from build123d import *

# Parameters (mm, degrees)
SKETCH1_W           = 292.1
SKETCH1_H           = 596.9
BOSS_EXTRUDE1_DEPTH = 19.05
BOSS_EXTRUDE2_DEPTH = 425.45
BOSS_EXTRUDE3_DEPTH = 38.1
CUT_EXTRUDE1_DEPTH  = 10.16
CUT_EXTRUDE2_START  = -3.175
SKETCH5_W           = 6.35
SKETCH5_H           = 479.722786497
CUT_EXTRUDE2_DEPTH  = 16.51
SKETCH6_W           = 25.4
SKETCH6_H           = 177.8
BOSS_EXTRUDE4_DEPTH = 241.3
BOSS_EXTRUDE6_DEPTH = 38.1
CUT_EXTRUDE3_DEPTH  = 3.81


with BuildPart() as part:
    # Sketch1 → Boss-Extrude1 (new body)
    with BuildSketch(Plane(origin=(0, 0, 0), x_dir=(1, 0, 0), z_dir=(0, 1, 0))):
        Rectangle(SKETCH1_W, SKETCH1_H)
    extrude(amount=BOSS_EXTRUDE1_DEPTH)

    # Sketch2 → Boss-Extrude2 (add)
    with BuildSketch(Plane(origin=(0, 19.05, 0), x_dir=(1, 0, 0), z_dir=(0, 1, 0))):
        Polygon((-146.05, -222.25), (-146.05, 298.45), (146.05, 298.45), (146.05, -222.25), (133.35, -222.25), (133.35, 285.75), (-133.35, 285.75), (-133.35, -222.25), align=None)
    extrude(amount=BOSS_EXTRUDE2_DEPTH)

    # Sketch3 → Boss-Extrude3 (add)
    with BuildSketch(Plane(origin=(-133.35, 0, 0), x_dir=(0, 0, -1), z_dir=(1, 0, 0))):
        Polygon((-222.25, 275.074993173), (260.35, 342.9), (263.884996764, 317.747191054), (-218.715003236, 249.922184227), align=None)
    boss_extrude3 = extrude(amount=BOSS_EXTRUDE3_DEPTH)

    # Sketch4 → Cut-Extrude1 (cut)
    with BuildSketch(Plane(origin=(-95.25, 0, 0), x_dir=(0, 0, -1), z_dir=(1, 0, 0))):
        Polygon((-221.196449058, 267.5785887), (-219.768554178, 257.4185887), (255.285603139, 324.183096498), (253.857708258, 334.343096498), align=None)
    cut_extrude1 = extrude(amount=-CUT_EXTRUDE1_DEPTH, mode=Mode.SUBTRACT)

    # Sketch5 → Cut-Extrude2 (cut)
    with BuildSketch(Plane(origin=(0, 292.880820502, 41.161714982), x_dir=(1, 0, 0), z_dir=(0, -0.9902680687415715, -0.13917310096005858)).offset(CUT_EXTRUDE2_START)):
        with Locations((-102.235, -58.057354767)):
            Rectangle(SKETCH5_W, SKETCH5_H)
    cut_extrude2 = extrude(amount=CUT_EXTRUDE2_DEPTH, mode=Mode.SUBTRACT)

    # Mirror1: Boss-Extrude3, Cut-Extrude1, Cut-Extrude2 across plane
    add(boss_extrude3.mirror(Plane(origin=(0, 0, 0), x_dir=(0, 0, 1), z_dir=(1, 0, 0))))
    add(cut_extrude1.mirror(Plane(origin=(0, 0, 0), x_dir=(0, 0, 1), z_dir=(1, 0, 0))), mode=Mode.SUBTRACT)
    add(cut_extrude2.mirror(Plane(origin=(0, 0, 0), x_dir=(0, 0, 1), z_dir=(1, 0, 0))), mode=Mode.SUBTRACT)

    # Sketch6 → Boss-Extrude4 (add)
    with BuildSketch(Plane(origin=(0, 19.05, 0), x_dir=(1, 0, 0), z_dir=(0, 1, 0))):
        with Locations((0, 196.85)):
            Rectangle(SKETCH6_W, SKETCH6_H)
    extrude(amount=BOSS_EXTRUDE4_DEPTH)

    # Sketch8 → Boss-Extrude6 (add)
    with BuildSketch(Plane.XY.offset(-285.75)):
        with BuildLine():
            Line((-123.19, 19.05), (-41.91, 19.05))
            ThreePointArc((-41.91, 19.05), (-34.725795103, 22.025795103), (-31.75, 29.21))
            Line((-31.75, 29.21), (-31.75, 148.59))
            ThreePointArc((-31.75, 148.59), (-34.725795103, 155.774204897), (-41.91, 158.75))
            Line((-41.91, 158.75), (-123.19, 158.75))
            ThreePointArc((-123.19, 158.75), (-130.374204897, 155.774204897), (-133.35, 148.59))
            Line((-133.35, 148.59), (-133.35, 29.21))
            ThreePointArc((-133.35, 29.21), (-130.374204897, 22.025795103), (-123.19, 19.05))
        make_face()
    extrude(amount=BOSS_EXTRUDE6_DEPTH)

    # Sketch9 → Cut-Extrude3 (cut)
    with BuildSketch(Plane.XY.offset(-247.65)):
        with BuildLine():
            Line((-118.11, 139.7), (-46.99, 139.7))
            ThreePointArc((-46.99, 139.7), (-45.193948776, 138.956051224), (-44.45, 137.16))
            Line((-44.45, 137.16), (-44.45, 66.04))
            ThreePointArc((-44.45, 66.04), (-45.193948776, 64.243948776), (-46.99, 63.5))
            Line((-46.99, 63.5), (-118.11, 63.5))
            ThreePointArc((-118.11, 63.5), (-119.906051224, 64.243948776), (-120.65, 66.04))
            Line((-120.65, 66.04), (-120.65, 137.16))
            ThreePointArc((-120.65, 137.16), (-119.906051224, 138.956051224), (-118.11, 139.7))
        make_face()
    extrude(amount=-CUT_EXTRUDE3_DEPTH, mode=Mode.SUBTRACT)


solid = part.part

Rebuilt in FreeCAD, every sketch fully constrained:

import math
import FreeCAD as App
import Part
import Sketcher
Q = App.Units.Quantity


def add_polygon(sketch, points):
    """Adds a closed chain of lines whose ends are joined by coincident constraints."""
    first, n = sketch.GeometryCount, len(points)
    for a, b in zip(points, points[1:] + points[:1]):
        sketch.addGeometry(Part.LineSegment(App.Vector(*a, 0), App.Vector(*b, 0)), False)
    for i in range(n):
        sketch.addConstraint(Sketcher.Constraint("Coincident", first + i, 2, first + (i + 1) % n, 1))

doc = App.newDocument("Part")
body = doc.addObject("PartDesign::Body", "Body")

sketch1 = doc.addObject("Sketcher::SketchObject", "Sketch")
body.addObject(sketch1)
sketch1.AttachmentSupport = (doc.XZ_Plane, [""])
sketch1.MapMode = "FlatFace"
add_polygon(sketch1, [(-146, -298), (-146, 298), (146, 298), (146, -298)])
sketch1.addConstraint(Sketcher.Constraint("Vertical", 0))
sketch1.addConstraint(Sketcher.Constraint("Horizontal", 1))
sketch1.addConstraint(Sketcher.Constraint("Vertical", 2))
sketch1.addConstraint(Sketcher.Constraint("Horizontal", 3))
sketch1.addConstraint(Sketcher.Constraint("Symmetric", 0, 2, 2, 2, -1, 1))
sketch1.addConstraint(Sketcher.Constraint("DistanceX", 1, 1, 1, 2, Q("11.5 in")))
sketch1.addConstraint(Sketcher.Constraint("DistanceY", 0, 1, 0, 2, Q("23.5 in")))
pad1 = doc.addObject("PartDesign::Pad", "Pad")
body.addObject(pad1)
pad1.Profile = sketch1
pad1.Length = Q("0.75 in")
pad1.Reversed = True

sketch2 = doc.addObject("Sketcher::SketchObject", "Sketch001")
body.addObject(sketch2)
sketch2.AttachmentSupport = (doc.XZ_Plane, [""])
sketch2.MapMode = "FlatFace"
sketch2.AttachmentOffset = App.Placement(App.Vector(0, 0, -0.75 * 25.4), App.Rotation())
add_polygon(sketch2, [(-146, -298), (-146, 222), (-133, 222), (-133, -286), (133, -286), (133, 222), (146, 222), (146, -298)])
sketch2.addConstraint(Sketcher.Constraint("Vertical", 0))
sketch2.addConstraint(Sketcher.Constraint("Horizontal", 1))
sketch2.addConstraint(Sketcher.Constraint("Vertical", 2))
sketch2.addConstraint(Sketcher.Constraint("Horizontal", 3))
sketch2.addConstraint(Sketcher.Constraint("Vertical", 4))
sketch2.addConstraint(Sketcher.Constraint("Horizontal", 5))
sketch2.addConstraint(Sketcher.Constraint("Vertical", 6))
sketch2.addConstraint(Sketcher.Constraint("Horizontal", 7))
sketch2.addConstraint(Sketcher.Constraint("Symmetric", 1, 2, 4, 2, -2))
sketch2.addConstraint(Sketcher.Constraint("Equal", 1, 5))
sketch2.addConstraint(Sketcher.Constraint("DistanceY", 2, 2, 2, 1, Q("20 in")))
sketch2.addConstraint(Sketcher.Constraint("DistanceX", 1, 1, 1, 2, Q("0.5 in")))
sketch2.addConstraint(Sketcher.Constraint("DistanceX", 3, 1, 3, 2, Q("10.5 in")))
sketch2.addConstraint(Sketcher.Constraint("DistanceY", 0, 1, 0, 2, Q("20.5 in")))
sketch2.addConstraint(Sketcher.Constraint("DistanceY", -1, 1, 0, 2, Q("8.75 in")))
pad2 = doc.addObject("PartDesign::Pad", "Pad001")
body.addObject(pad2)
pad2.Profile = sketch2
pad2.Length = Q("16.75 in")
pad2.Reversed = True

sketch3 = doc.addObject("Sketcher::SketchObject", "Sketch002")
body.addObject(sketch3)
sketch3.AttachmentSupport = (doc.YZ_Plane, [""])
sketch3.MapMode = "FlatFace"
sketch3.AttachmentOffset = App.Placement(App.Vector(0, 0, -5.25 * 25.4), App.Rotation())
add_polygon(sketch3, [(343, -260), (275, 222), (250, 219), (318, -264)])
sketch3.addConstraint(Sketcher.Constraint("Perpendicular", 0, 1))
sketch3.addConstraint(Sketcher.Constraint("Perpendicular", 1, 2))
sketch3.addConstraint(Sketcher.Constraint("Perpendicular", 2, 3))
sketch3.addConstraint(Sketcher.Constraint("Distance", 1, Q("1 in")))
sketch3.addConstraint(Sketcher.Constraint("Angle", 0, Q("98 deg")))
sketch3.addConstraint(Sketcher.Constraint("DistanceY", 2, 2, 1, 2, Q("19 in")))
sketch3.addConstraint(Sketcher.Constraint("DistanceX", -1, 1, 3, 2, Q("13.5 in")))
sketch3.addConstraint(Sketcher.Constraint("DistanceY", -1, 1, 0, 2, Q("8.75 in")))
pad3 = doc.addObject("PartDesign::Pad", "Pad002")
body.addObject(pad3)
pad3.Profile = sketch3
pad3.Length = Q("1.5 in")

sketch4 = doc.addObject("Sketcher::SketchObject", "Sketch003")
body.addObject(sketch4)
sketch4.AttachmentSupport = (doc.YZ_Plane, [""])
sketch4.MapMode = "FlatFace"
sketch4.AttachmentOffset = App.Placement(App.Vector(0, 0, -3.75 * 25.4), App.Rotation())
add_polygon(sketch4, [(268, 221), (257, 220), (324, -255), (334, -254)])
sketch4.addConstraint(Sketcher.Constraint("Perpendicular", 0, 1))
sketch4.addConstraint(Sketcher.Constraint("Perpendicular", 1, 2))
sketch4.addConstraint(Sketcher.Constraint("Perpendicular", 2, 3))
sketch4.addConstraint(Sketcher.Constraint("Angle", 0, Q("-172 deg")))
sketch4.addConstraint(Sketcher.Constraint("DistanceX", 1, 2, 2, 2, Q("0.4 in")))
sketch4.addConstraint(Sketcher.Constraint("DistanceX", -1, 1, 0, 2, Q("257.418589 mm")))
sketch4.addConstraint(Sketcher.Constraint("DistanceY", 2, 2, -1, 1, Q("253.857708 mm")))
sketch4.addConstraint(Sketcher.Constraint("DistanceY", -1, 1, 3, 2, Q("221.196449 mm")))
pocket1 = doc.addObject("PartDesign::Pocket", "Pocket")
body.addObject(pocket1)
pocket1.Profile = sketch4
pocket1.Length = Q("0.4 in")

sketch5 = doc.addObject("Sketcher::SketchObject", "Sketch004")
body.addObject(sketch5)
sketch5.Placement = App.Placement(App.Vector(0, 296.024922, 41.60359), App.Rotation(App.Vector(1, 0, 0), App.Vector(0, -0.139173101, 0.990268069), App.Vector(0, -0.990268069, -0.139173101), "ZXY"))
add_polygon(sketch5, [(-105, 182), (-105, -298), (-99, -298), (-99, 182)])
sketch5.addConstraint(Sketcher.Constraint("Vertical", 0))
sketch5.addConstraint(Sketcher.Constraint("Horizontal", 1))
sketch5.addConstraint(Sketcher.Constraint("Vertical", 2))
sketch5.addConstraint(Sketcher.Constraint("Horizontal", 3))
sketch5.addConstraint(Sketcher.Constraint("DistanceX", 1, 1, 1, 2, Q("0.25 in")))
sketch5.addConstraint(Sketcher.Constraint("DistanceX", 1, 2, -1, 1, Q("3.9 in")))
sketch5.addConstraint(Sketcher.Constraint("DistanceY", 0, 2, 0, 1, Q("479.722787 mm")))
sketch5.addConstraint(Sketcher.Constraint("DistanceY", 0, 2, -1, 1, Q("297.918748 mm")))
pocket2 = doc.addObject("PartDesign::Pocket", "Pocket001")
body.addObject(pocket2)
pocket2.Profile = sketch5
pocket2.Length = Q("0.65 in")
pocket2.Reversed = True
doc.recompute()

mirrored = doc.addObject("PartDesign::Mirrored", "Mirrored")
body.addObject(mirrored)
mirrored.Originals = [pad3, pocket1, pocket2]
mirrored.MirrorPlane = (doc.YZ_Plane, [""])
body.Tip = mirrored

sketch6 = doc.addObject("Sketcher::SketchObject", "Sketch005")
body.addObject(sketch6)
sketch6.AttachmentSupport = (doc.XZ_Plane, [""])
sketch6.MapMode = "FlatFace"
sketch6.AttachmentOffset = App.Placement(App.Vector(0, 0, -0.75 * 25.4), App.Rotation())
add_polygon(sketch6, [(-13, -286), (-13, -108), (13, -108), (13, -286)])
sketch6.addConstraint(Sketcher.Constraint("Vertical", 0))
sketch6.addConstraint(Sketcher.Constraint("Horizontal", 1))
sketch6.addConstraint(Sketcher.Constraint("Vertical", 2))
sketch6.addConstraint(Sketcher.Constraint("Horizontal", 3))
sketch6.addConstraint(Sketcher.Constraint("DistanceX", 1, 1, 1, 2, Q("1 in")))
sketch6.addConstraint(Sketcher.Constraint("DistanceY", 0, 1, 0, 2, Q("7 in")))
sketch6.addConstraint(Sketcher.Constraint("DistanceX", 0, 2, -1, 1, Q("0.5 in")))
sketch6.addConstraint(Sketcher.Constraint("DistanceY", 0, 2, -1, 1, Q("4.25 in")))
pad4 = doc.addObject("PartDesign::Pad", "Pad003")
body.addObject(pad4)
pad4.Profile = sketch6
pad4.Length = Q("9.5 in")
pad4.Reversed = True

sketch7 = doc.addObject("Sketcher::SketchObject", "Sketch006")
body.addObject(sketch7)
sketch7.AttachmentSupport = (doc.XY_Plane, [""])
sketch7.MapMode = "FlatFace"
sketch7.AttachmentOffset = App.Placement(App.Vector(0, 0, -11.25 * 25.4), App.Rotation())
sketch7.addGeometry(Part.LineSegment(App.Vector(-123, 19, 0), App.Vector(-42, 19, 0)), False)
sketch7.addGeometry(Part.ArcOfCircle(Part.Circle(App.Vector(-42, 29, 0), App.Vector(0, 0, 1), 10), math.radians(-90), math.radians(0)), False)
sketch7.addGeometry(Part.LineSegment(App.Vector(-32, 29, 0), App.Vector(-32, 149, 0)), False)
sketch7.addGeometry(Part.ArcOfCircle(Part.Circle(App.Vector(-42, 149, 0), App.Vector(0, 0, 1), 10), math.radians(0), math.radians(90)), False)
sketch7.addGeometry(Part.LineSegment(App.Vector(-42, 159, 0), App.Vector(-123, 159, 0)), False)
sketch7.addGeometry(Part.ArcOfCircle(Part.Circle(App.Vector(-123, 149, 0), App.Vector(0, 0, 1), 10), math.radians(90), math.radians(180)), False)
sketch7.addGeometry(Part.LineSegment(App.Vector(-133, 149, 0), App.Vector(-133, 29, 0)), False)
sketch7.addGeometry(Part.ArcOfCircle(Part.Circle(App.Vector(-123, 29, 0), App.Vector(0, 0, 1), 10), math.radians(180), math.radians(270)), False)
sketch7.addConstraint(Sketcher.Constraint("Tangent", 0, 2, 1, 1))
sketch7.addConstraint(Sketcher.Constraint("Tangent", 1, 2, 2, 1))
sketch7.addConstraint(Sketcher.Constraint("Tangent", 2, 2, 3, 1))
sketch7.addConstraint(Sketcher.Constraint("Tangent", 3, 2, 4, 1))
sketch7.addConstraint(Sketcher.Constraint("Tangent", 4, 2, 5, 1))
sketch7.addConstraint(Sketcher.Constraint("Tangent", 5, 2, 6, 1))
sketch7.addConstraint(Sketcher.Constraint("Tangent", 6, 2, 7, 1))
sketch7.addConstraint(Sketcher.Constraint("Tangent", 7, 2, 0, 1))
sketch7.addConstraint(Sketcher.Constraint("Horizontal", 0))
sketch7.addConstraint(Sketcher.Constraint("Vertical", 2))
sketch7.addConstraint(Sketcher.Constraint("Horizontal", 4))
sketch7.addConstraint(Sketcher.Constraint("Vertical", 6))
sketch7.addConstraint(Sketcher.Constraint("Equal", 1, 3))
sketch7.addConstraint(Sketcher.Constraint("Equal", 3, 5))
sketch7.addConstraint(Sketcher.Constraint("Equal", 5, 7))
sketch7.addConstraint(Sketcher.Constraint("Radius", 1, Q("0.4 in")))
sketch7.addConstraint(Sketcher.Constraint("DistanceX", 0, 1, 0, 2, Q("3.2 in")))
sketch7.addConstraint(Sketcher.Constraint("DistanceY", 2, 1, 2, 2, Q("4.7 in")))
sketch7.addConstraint(Sketcher.Constraint("DistanceX", 1, 3, -1, 1, Q("1.65 in")))
sketch7.addConstraint(Sketcher.Constraint("DistanceY", -1, 1, 1, 3, Q("1.15 in")))
pad5 = doc.addObject("PartDesign::Pad", "Pad004")
body.addObject(pad5)
pad5.Profile = sketch7
pad5.Length = Q("1.5 in")

sketch8 = doc.addObject("Sketcher::SketchObject", "Sketch007")
body.addObject(sketch8)
sketch8.AttachmentSupport = (doc.XY_Plane, [""])
sketch8.MapMode = "FlatFace"
sketch8.AttachmentOffset = App.Placement(App.Vector(0, 0, -9.75 * 25.4), App.Rotation())
sketch8.addGeometry(Part.LineSegment(App.Vector(-47, 139.7, 0), App.Vector(-118.1, 139.7, 0)), False)
sketch8.addGeometry(Part.ArcOfCircle(Part.Circle(App.Vector(-118.1, 137.2, 0), App.Vector(0, 0, 1), 2.5), math.radians(90), math.radians(180)), False)
sketch8.addGeometry(Part.LineSegment(App.Vector(-120.7, 137.2, 0), App.Vector(-120.7, 66, 0)), False)
sketch8.addGeometry(Part.ArcOfCircle(Part.Circle(App.Vector(-118.1, 66, 0), App.Vector(0, 0, 1), 2.5), math.radians(-180), math.radians(-90)), False)
sketch8.addGeometry(Part.LineSegment(App.Vector(-118.1, 63.5, 0), App.Vector(-47, 63.5, 0)), False)
sketch8.addGeometry(Part.ArcOfCircle(Part.Circle(App.Vector(-47, 66, 0), App.Vector(0, 0, 1), 2.5), math.radians(-90), math.radians(0)), False)
sketch8.addGeometry(Part.LineSegment(App.Vector(-44.5, 66, 0), App.Vector(-44.5, 137.2, 0)), False)
sketch8.addGeometry(Part.ArcOfCircle(Part.Circle(App.Vector(-47, 137.2, 0), App.Vector(0, 0, 1), 2.5), math.radians(0), math.radians(90)), False)
sketch8.addConstraint(Sketcher.Constraint("Tangent", 0, 2, 1, 1))
sketch8.addConstraint(Sketcher.Constraint("Tangent", 1, 2, 2, 1))
sketch8.addConstraint(Sketcher.Constraint("Tangent", 2, 2, 3, 1))
sketch8.addConstraint(Sketcher.Constraint("Tangent", 3, 2, 4, 1))
sketch8.addConstraint(Sketcher.Constraint("Tangent", 4, 2, 5, 1))
sketch8.addConstraint(Sketcher.Constraint("Tangent", 5, 2, 6, 1))
sketch8.addConstraint(Sketcher.Constraint("Tangent", 6, 2, 7, 1))
sketch8.addConstraint(Sketcher.Constraint("Tangent", 7, 2, 0, 1))
sketch8.addConstraint(Sketcher.Constraint("Horizontal", 0))
sketch8.addConstraint(Sketcher.Constraint("Vertical", 2))
sketch8.addConstraint(Sketcher.Constraint("Horizontal", 4))
sketch8.addConstraint(Sketcher.Constraint("Vertical", 6))
sketch8.addConstraint(Sketcher.Constraint("Equal", 1, 3))
sketch8.addConstraint(Sketcher.Constraint("Equal", 3, 5))
sketch8.addConstraint(Sketcher.Constraint("Equal", 5, 7))
sketch8.addConstraint(Sketcher.Constraint("Equal", 4, 2))
sketch8.addConstraint(Sketcher.Constraint("Radius", 1, Q("0.1 in")))
sketch8.addConstraint(Sketcher.Constraint("DistanceX", 0, 2, 0, 1, Q("2.8 in")))
sketch8.addConstraint(Sketcher.Constraint("DistanceY", -1, 1, 1, 3, Q("5.4 in")))
sketch8.addConstraint(Sketcher.Constraint("DistanceX", 1, 3, -1, 1, Q("4.65 in")))
pocket3 = doc.addObject("PartDesign::Pocket", "Pocket002")
body.addObject(pocket3)
pocket3.Profile = sketch8
pocket3.Length = Q("0.15 in")

doc.recompute()
